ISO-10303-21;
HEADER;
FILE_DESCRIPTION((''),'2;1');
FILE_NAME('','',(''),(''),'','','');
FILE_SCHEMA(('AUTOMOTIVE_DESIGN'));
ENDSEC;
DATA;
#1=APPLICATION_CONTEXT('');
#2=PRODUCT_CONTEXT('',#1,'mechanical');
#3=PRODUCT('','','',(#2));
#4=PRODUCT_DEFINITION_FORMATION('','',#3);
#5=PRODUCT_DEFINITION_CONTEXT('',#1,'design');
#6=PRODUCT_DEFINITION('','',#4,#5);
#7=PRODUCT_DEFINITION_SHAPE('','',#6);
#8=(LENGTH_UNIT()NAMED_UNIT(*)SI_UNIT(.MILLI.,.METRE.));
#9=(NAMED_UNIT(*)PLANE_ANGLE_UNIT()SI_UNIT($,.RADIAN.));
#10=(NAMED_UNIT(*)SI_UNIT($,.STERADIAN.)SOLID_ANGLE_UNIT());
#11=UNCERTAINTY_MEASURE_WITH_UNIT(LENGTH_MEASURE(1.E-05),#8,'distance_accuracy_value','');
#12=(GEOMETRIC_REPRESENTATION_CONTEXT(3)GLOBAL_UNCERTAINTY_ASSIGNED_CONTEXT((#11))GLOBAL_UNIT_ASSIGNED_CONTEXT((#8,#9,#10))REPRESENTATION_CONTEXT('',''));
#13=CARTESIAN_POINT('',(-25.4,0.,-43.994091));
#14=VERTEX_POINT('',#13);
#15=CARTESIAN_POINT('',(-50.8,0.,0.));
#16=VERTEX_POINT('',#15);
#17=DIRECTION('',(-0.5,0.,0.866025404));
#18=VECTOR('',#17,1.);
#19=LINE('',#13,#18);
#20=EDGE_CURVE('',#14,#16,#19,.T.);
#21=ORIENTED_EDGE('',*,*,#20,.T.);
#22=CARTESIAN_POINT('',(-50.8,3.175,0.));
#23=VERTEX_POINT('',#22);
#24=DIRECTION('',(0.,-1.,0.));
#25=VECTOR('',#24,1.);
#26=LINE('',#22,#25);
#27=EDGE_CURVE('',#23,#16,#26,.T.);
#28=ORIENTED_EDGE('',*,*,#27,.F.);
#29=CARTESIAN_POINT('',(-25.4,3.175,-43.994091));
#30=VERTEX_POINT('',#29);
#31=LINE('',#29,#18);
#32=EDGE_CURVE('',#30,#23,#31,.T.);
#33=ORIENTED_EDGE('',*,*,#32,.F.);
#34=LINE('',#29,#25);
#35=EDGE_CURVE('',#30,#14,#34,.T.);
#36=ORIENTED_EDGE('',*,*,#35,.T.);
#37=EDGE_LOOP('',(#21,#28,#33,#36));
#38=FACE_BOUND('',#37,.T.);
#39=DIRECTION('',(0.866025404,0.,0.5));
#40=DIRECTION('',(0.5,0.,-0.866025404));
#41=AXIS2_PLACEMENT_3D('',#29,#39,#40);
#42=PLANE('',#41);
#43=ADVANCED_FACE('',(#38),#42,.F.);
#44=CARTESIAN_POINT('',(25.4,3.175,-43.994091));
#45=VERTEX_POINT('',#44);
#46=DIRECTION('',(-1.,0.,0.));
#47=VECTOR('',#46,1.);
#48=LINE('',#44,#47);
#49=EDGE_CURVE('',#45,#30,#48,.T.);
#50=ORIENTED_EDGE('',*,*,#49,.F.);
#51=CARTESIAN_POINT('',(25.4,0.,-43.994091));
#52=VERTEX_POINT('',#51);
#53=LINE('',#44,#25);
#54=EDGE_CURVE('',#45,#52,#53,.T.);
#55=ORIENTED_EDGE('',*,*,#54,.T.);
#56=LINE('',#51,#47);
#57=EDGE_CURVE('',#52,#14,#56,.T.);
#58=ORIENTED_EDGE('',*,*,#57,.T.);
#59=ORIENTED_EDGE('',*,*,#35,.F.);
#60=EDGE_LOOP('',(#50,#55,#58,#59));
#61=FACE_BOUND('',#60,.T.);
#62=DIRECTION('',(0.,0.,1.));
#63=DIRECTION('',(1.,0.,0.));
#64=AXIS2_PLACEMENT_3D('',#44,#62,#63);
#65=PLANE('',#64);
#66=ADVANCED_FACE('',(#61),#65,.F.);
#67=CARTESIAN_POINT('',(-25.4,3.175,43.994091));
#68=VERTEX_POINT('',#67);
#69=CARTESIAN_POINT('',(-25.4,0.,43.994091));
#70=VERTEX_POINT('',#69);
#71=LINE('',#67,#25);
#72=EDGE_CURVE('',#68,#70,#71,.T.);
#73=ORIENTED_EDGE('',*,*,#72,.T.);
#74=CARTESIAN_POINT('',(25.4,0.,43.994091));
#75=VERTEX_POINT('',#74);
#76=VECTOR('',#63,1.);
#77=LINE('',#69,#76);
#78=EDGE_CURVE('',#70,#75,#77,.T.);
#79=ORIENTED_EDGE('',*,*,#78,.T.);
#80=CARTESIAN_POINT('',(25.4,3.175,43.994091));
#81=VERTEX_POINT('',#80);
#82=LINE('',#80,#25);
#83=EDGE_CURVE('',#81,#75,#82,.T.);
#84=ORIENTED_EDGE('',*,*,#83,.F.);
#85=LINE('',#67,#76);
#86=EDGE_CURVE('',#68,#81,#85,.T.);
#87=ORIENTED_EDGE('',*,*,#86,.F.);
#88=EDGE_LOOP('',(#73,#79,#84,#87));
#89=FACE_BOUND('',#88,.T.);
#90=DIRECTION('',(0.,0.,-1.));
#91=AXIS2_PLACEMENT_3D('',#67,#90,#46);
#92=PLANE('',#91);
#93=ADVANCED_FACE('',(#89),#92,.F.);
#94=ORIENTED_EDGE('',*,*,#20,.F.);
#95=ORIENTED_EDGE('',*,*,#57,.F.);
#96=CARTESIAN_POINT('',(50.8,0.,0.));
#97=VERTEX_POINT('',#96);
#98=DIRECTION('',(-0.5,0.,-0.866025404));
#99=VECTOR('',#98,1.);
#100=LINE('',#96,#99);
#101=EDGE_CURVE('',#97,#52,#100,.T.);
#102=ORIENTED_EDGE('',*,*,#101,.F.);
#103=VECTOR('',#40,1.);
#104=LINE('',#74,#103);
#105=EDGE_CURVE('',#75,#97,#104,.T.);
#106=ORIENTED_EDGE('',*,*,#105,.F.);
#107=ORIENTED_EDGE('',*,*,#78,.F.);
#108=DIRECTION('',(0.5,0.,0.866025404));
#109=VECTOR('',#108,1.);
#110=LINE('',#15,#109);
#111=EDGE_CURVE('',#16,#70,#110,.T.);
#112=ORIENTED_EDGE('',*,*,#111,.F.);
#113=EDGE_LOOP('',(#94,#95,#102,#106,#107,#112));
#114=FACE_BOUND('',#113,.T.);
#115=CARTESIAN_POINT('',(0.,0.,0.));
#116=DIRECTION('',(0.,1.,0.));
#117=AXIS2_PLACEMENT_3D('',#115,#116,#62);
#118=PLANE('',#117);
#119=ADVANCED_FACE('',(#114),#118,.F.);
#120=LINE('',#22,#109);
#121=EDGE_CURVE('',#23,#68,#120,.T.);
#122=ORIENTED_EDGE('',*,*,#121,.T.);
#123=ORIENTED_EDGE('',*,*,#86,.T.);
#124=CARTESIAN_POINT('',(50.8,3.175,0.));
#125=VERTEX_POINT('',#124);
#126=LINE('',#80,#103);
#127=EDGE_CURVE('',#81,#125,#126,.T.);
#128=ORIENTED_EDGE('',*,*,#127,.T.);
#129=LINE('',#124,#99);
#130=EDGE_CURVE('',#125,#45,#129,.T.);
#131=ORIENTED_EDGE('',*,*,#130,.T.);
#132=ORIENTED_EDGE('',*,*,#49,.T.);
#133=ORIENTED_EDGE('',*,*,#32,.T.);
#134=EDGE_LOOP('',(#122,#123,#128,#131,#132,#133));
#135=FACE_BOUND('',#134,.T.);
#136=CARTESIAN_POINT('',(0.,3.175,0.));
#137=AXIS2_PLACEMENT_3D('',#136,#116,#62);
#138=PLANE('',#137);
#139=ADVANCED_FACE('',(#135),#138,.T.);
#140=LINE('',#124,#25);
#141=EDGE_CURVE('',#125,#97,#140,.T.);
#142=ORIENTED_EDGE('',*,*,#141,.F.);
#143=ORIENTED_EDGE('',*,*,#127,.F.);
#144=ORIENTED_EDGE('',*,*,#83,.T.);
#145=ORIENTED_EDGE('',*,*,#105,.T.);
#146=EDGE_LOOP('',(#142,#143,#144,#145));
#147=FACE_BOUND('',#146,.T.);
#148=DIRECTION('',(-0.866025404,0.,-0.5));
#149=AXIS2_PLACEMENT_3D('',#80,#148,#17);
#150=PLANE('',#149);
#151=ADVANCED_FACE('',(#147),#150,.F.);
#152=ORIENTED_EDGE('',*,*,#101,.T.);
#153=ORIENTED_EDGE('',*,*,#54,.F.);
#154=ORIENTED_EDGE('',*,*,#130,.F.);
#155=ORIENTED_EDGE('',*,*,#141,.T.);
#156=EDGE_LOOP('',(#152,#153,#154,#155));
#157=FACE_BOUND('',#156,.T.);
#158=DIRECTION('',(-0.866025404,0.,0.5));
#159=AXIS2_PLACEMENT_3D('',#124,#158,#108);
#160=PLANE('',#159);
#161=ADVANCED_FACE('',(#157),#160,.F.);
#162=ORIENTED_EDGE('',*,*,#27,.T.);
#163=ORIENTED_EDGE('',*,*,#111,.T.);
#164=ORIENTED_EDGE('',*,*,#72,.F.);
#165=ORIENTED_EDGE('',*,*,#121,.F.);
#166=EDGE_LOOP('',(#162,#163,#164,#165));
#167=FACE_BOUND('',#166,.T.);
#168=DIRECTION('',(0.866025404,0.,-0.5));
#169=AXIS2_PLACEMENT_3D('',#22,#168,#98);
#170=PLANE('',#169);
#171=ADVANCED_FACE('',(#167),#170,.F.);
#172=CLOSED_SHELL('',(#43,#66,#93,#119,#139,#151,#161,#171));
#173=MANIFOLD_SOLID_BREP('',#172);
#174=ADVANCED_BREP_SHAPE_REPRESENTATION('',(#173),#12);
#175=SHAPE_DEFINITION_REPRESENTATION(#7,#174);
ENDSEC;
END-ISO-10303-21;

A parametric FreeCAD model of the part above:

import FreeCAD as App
import Part
import Sketcher

V = App.Vector
Q = App.Units.Quantity

doc = App.newDocument("Part")
body = doc.addObject("PartDesign::Body", "Body")

sketch1 = doc.addObject("Sketcher::SketchObject", "Sketch")
body.addObject(sketch1)
sketch1.AttachmentSupport = (doc.XZ_Plane, [""])
sketch1.MapMode = "FlatFace"
sketch1.addGeometry([
    Part.LineSegment(V(51, 0, 0), V(25, -44, 0)),
    Part.LineSegment(V(25, -44, 0), V(-25, -44, 0)),
    Part.LineSegment(V(-25, -44, 0), V(-51, 0, 0)),
    Part.LineSegment(V(-51, 0, 0), V(-25, 44, 0)),
    Part.LineSegment(V(-25, 44, 0), V(25, 44, 0)),
    Part.LineSegment(V(25, 44, 0), V(51, 0, 0)),
], False)
sketch1.addConstraint([
    Sketcher.Constraint("Coincident", 0, 2, 1, 1),
    Sketcher.Constraint("Coincident", 1, 2, 2, 1),
    Sketcher.Constraint("Coincident", 2, 2, 3, 1),
    Sketcher.Constraint("Coincident", 3, 2, 4, 1),
    Sketcher.Constraint("Coincident", 4, 2, 5, 1),
    Sketcher.Constraint("Coincident", 5, 2, 0, 1),
    Sketcher.Constraint("Horizontal", 1),
    Sketcher.Constraint("Horizontal", 4),
    Sketcher.Constraint("Symmetric", 0, 2, 3, 2, -1, 1),
    Sketcher.Constraint("Symmetric", 2, 2, 5, 2, -1, 1),
    Sketcher.Constraint("PointOnObject", 2, 2, -1),
    Sketcher.Constraint("Parallel", 2, 5),
    Sketcher.Constraint("Vertical", 1, 2, 3, 2),
    Sketcher.Constraint("DistanceX", 1, 2, 1, 1, Q("2 in")),
    Sketcher.Constraint("Distance", 0, Q("2 in")),
    Sketcher.Constraint("DistanceX", 2, 2, -1, 1, Q("2 in")),
])
pad1 = doc.addObject("PartDesign::Pad", "Pad")
body.addObject(pad1)
pad1.Profile = sketch1
pad1.Length = Q("0.125 in")
pad1.Reversed = True

doc.recompute()
